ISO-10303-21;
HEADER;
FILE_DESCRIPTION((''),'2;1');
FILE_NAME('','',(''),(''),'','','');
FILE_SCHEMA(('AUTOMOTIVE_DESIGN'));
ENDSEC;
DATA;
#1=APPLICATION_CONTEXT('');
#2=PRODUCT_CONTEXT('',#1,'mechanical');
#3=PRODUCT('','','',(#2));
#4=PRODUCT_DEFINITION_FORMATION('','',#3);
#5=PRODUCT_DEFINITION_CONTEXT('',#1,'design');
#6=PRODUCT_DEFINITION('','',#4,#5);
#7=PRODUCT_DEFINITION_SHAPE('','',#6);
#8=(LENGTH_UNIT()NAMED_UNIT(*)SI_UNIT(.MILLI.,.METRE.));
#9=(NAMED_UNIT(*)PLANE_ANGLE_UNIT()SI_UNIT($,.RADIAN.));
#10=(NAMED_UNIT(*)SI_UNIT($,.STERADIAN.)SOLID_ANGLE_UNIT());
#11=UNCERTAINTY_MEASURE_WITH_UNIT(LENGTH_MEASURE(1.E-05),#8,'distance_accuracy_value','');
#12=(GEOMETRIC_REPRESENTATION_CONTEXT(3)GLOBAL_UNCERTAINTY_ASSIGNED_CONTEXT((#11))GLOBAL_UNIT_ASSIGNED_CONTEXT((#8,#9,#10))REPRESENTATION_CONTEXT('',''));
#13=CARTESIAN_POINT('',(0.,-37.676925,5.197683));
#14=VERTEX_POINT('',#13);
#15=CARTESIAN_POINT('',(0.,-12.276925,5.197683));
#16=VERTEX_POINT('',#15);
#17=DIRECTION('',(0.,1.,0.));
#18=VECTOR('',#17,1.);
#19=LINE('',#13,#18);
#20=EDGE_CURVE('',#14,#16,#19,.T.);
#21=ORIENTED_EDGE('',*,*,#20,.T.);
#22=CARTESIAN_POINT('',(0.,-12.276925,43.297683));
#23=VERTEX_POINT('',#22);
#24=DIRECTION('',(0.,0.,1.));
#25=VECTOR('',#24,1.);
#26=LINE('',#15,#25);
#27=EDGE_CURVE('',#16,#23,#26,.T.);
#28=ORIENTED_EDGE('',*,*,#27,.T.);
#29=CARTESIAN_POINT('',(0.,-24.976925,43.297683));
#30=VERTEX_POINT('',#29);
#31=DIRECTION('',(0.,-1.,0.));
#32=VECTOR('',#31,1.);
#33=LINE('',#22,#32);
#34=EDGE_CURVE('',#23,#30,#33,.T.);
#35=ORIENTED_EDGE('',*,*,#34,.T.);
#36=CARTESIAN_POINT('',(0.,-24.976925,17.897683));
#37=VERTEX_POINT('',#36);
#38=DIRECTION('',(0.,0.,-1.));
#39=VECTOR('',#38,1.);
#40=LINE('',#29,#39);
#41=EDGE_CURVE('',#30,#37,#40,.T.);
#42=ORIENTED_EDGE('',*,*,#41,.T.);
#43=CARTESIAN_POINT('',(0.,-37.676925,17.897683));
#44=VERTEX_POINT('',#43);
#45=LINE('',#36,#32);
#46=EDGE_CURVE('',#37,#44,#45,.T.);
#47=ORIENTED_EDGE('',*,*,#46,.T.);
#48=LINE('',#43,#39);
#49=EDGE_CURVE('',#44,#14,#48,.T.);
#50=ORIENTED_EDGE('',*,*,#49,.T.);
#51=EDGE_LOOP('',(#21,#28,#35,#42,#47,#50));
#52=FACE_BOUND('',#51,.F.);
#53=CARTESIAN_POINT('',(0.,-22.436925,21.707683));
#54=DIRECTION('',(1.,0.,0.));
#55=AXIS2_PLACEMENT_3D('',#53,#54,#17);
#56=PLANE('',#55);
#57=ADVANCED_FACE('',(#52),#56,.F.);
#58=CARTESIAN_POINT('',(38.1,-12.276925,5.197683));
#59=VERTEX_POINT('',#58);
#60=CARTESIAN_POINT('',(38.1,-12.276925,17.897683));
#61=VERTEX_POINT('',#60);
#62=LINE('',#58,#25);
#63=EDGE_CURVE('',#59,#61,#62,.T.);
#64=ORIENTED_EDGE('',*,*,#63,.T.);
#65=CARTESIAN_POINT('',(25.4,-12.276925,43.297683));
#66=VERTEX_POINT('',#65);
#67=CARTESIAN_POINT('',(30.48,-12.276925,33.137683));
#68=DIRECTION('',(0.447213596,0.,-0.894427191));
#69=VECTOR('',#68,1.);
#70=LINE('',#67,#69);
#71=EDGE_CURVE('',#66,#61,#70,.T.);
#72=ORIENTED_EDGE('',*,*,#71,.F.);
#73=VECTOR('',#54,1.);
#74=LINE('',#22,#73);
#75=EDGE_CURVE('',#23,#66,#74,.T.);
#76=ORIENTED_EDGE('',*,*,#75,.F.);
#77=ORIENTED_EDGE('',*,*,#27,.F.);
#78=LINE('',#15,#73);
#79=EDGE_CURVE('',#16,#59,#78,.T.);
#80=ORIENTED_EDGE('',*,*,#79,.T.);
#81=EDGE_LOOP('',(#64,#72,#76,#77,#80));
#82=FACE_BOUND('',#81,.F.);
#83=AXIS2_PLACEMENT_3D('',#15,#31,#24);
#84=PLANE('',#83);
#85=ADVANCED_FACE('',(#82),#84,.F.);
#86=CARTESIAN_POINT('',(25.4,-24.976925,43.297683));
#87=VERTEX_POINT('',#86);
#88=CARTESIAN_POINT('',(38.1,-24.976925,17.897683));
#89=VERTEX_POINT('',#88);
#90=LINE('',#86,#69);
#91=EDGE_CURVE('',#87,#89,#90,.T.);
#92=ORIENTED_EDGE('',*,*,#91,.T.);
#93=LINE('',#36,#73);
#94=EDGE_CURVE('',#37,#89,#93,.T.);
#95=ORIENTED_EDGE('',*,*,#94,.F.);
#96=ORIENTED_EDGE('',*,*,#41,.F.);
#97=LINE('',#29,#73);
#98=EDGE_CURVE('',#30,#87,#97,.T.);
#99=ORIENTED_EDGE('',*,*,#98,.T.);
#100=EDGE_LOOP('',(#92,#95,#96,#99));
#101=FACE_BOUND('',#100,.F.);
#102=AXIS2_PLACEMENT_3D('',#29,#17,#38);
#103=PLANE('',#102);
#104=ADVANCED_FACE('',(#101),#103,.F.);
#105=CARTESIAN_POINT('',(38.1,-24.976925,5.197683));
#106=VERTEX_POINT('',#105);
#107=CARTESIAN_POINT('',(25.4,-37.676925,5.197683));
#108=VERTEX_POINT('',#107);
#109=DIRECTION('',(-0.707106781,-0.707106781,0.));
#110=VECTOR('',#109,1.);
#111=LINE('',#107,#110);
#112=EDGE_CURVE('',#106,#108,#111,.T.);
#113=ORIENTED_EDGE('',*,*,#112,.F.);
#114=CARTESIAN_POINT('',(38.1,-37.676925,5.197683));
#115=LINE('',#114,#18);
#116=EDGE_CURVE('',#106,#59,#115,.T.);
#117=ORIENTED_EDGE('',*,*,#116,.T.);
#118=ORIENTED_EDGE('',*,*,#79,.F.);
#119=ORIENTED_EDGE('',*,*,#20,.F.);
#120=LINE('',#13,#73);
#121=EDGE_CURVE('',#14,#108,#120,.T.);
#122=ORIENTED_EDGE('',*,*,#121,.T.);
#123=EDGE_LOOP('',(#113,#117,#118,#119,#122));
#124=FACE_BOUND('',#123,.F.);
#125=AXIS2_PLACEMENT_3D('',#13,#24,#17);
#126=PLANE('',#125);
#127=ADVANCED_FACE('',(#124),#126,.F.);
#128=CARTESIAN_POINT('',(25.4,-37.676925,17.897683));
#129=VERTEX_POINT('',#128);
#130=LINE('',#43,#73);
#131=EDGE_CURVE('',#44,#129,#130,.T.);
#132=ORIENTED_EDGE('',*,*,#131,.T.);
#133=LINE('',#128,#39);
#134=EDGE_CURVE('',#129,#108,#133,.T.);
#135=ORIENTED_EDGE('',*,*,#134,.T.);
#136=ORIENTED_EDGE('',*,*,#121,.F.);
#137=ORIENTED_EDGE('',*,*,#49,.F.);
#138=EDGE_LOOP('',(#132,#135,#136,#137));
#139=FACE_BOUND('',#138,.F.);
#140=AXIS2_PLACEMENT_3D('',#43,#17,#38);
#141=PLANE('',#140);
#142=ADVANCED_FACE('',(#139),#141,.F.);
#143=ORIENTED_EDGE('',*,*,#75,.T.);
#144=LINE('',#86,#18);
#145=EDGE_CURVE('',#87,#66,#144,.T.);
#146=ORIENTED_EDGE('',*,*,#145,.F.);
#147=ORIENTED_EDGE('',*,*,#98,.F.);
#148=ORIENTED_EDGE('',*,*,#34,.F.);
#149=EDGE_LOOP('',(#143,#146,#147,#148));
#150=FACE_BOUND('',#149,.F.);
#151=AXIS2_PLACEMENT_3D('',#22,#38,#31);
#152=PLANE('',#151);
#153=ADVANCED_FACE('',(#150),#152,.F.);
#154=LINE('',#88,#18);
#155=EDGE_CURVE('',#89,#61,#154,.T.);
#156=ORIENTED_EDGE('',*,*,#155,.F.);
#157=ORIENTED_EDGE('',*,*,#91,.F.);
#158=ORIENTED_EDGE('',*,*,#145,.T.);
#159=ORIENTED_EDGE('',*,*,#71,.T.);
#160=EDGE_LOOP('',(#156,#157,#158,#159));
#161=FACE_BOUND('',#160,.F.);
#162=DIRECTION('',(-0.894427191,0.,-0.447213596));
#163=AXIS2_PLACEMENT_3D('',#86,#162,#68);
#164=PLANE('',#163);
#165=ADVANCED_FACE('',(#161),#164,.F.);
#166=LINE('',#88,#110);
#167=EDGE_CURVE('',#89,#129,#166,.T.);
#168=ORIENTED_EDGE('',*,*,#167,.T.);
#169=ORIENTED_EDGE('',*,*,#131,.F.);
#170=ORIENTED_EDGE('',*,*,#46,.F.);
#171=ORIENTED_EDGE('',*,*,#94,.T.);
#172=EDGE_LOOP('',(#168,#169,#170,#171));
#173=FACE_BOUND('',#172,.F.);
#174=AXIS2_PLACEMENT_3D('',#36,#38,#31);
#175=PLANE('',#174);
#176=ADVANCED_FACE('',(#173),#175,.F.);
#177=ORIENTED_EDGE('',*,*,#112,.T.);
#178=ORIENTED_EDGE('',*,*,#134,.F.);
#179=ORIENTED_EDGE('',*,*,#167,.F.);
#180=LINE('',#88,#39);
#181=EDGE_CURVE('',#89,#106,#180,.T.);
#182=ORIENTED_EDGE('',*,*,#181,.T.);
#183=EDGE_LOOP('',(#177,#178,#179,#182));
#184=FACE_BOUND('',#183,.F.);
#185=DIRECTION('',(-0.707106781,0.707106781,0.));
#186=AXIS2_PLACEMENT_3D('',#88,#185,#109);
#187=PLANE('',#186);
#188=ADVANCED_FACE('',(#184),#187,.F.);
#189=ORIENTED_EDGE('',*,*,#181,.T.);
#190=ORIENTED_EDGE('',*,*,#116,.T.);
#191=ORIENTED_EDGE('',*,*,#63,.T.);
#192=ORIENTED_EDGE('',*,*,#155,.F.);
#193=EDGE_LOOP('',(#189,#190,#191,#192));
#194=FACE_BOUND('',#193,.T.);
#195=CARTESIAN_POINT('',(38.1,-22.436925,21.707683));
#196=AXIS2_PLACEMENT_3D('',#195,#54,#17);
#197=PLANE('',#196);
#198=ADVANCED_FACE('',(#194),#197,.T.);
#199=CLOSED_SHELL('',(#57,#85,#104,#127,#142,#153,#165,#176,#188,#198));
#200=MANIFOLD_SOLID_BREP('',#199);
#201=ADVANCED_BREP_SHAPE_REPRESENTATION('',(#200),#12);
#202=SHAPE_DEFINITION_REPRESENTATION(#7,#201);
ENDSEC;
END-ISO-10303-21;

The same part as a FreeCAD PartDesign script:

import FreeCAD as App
import Part
import Sketcher

V = App.Vector
Q = App.Units.Quantity

doc = App.newDocument("Part")
body = doc.addObject("PartDesign::Body", "Body")

# Sketch on YZ plane
sketch1 = body.newObject("Sketcher::SketchObject", "Sketch")
sketch1.AttachmentSupport = (doc.getObject("YZ_Plane"), [""])
sketch1.MapMode = "FlatFace"
sketch1.addGeometry([
    Part.LineSegment(V(-12, 5, 0), V(-12, 43, 0)),  # 0
    Part.LineSegment(V(-12, 43, 0), V(-25, 43, 0)),  # 1
    Part.LineSegment(V(-25, 43, 0), V(-25, 18, 0)),  # 2
    Part.LineSegment(V(-25, 18, 0), V(-38, 18, 0)),  # 3
    Part.LineSegment(V(-38, 18, 0), V(-38, 5, 0)),  # 4
    Part.LineSegment(V(-38, 5, 0), V(-12, 5, 0)),  # 5
], False)
sketch1.addConstraint([
    Sketcher.Constraint("Coincident", 0, 2, 1, 1),
    Sketcher.Constraint("Coincident", 1, 2, 2, 1),
    Sketcher.Constraint("Coincident", 2, 2, 3, 1),
    Sketcher.Constraint("Coincident", 3, 2, 4, 1),
    Sketcher.Constraint("Coincident", 4, 2, 5, 1),
    Sketcher.Constraint("Coincident", 5, 2, 0, 1),
    Sketcher.Constraint("Vertical", 0),
    Sketcher.Constraint("Horizontal", 1),
    Sketcher.Constraint("Vertical", 2),
    Sketcher.Constraint("Horizontal", 3),
    Sketcher.Constraint("Vertical", 4),
    Sketcher.Constraint("Horizontal", 5),
    Sketcher.Constraint("Equal", 1, 3),
    Sketcher.Constraint("Equal", 5, 2),
    Sketcher.Constraint("Equal", 3, 4),
    Sketcher.Constraint("DistanceX", 5, 1, 5, 2, Q("1 in")),
    Sketcher.Constraint("DistanceX", 0, 2, -1, 1, Q("12.276925 mm")),
    Sketcher.Constraint("DistanceY", -1, 1, 0, 2, Q("43.297683 mm")),
])
pad1 = body.newObject("PartDesign::Pad", "Pad")
pad1.Profile = sketch1
pad1.Length = Q("1.5 in")

# Sketch on XZ plane
sketch2 = body.newObject("Sketcher::SketchObject", "Sketch001")
sketch2.AttachmentSupport = (doc.getObject("XZ_Plane"), [""])
sketch2.MapMode = "FlatFace"
sketch2.AttachmentOffset = App.Placement(V(0, 0, 24.976925), App.Rotation())
sketch2.addGeometry([
    Part.LineSegment(V(38, 43, 0), V(25, 43, 0)),
    Part.LineSegment(V(25, 43, 0), V(38, 18, 0)),
    Part.LineSegment(V(38, 18, 0), V(38, 43, 0)),
], False)
sketch2.addConstraint([
    Sketcher.Constraint("Coincident", 0, 2, 1, 1),
    Sketcher.Constraint("Coincident", 1, 2, 2, 1),
    Sketcher.Constraint("Coincident", 2, 2, 0, 1),
    Sketcher.Constraint("Horizontal", 0),
    Sketcher.Constraint("Vertical", 2),
    Sketcher.Constraint("DistanceY", 2, 1, 2, 2, Q("1 in")),
    Sketcher.Constraint("DistanceX", 0, 2, 0, 1, Q("0.5 in")),
    Sketcher.Constraint("DistanceX", -1, 1, 0, 2, Q("1 in")),
    Sketcher.Constraint("DistanceY", -1, 1, 0, 2, Q("43.297683 mm")),
])
pocket1 = body.newObject("PartDesign::Pocket", "Pocket")
pocket1.Profile = sketch2
pocket1.Length = Q("1 in")

# Sketch on XY plane
sketch3 = body.newObject("Sketcher::SketchObject", "Sketch002")
sketch3.AttachmentSupport = (doc.getObject("XY_Plane"), [""])
sketch3.MapMode = "FlatFace"
sketch3.AttachmentOffset = App.Placement(V(0, 0, 17.897683), App.Rotation())
sketch3.addGeometry([
    Part.LineSegment(V(38, -38, 0), V(38, -25, 0)),
    Part.LineSegment(V(38, -25, 0), V(25, -38, 0)),
    Part.LineSegment(V(25, -38, 0), V(38, -38, 0)),
], False)
sketch3.addConstraint([
    Sketcher.Constraint("Coincident", 0, 2, 1, 1),
    Sketcher.Constraint("Coincident", 1, 2, 2, 1),
    Sketcher.Constraint("Coincident", 2, 2, 0, 1),
    Sketcher.Constraint("Vertical", 0),
    Sketcher.Constraint("Horizontal", 2),
    Sketcher.Constraint("Equal", 2, 0),
    Sketcher.Constraint("DistanceX", 2, 1, 2, 2, Q("0.5 in")),
    Sketcher.Constraint("DistanceX", -1, 1, 1, 2, Q("1 in")),
    Sketcher.Constraint("DistanceY", 0, 2, -1, 1, Q("24.976925 mm")),
])
pocket2 = body.newObject("PartDesign::Pocket", "Pocket001")
pocket2.Profile = sketch3
pocket2.Length = Q("1 in")

doc.recompute()
